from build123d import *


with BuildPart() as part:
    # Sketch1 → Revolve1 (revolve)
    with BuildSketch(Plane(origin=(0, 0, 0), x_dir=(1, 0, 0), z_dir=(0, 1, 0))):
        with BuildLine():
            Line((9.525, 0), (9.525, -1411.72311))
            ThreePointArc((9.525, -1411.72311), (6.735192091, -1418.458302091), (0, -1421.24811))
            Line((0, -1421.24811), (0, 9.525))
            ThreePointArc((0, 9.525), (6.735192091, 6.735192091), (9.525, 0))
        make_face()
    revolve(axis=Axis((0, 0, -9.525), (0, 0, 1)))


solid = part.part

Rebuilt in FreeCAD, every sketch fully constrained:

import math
import FreeCAD as App
import Part
import Sketcher
from FreeCAD import Vector
Q = App.Units.Quantity

doc = App.newDocument("Part")
body = doc.addObject("PartDesign::Body", "Body")

sketch1 = body.newObject("Sketcher::SketchObject", "Sketch")
sketch1.AttachmentSupport = (doc.getObject("XZ_Plane"), [""])
sketch1.MapMode = "FlatFace"
sketch1.addGeometry([
    Part.LineSegment(Vector(9.525, 1411.72311, 0), Vector(9.525, 0, 0)),
    Part.ArcOfCircle(Part.Circle(Vector(0, 0, 0), Vector(0, 0, 1), 9.525), math.radians(-90), math.radians(0)),
    Part.LineSegment(Vector(0, -9.525, 0), Vector(0, 1421.24811, 0)),
    Part.ArcOfCircle(Part.Circle(Vector(0, 1411.72311, 0), Vector(0, 0, 1), 9.525), math.radians(0), math.radians(90)),
], False)
sketch1.addConstraint([
    Sketcher.Constraint("Tangent", 0, 2, 1, 2),
    Sketcher.Constraint("Coincident", 1, 1, 2, 1),
    Sketcher.Constraint("Coincident", 2, 2, 3, 2),
    Sketcher.Constraint("Tangent", 3, 1, 0, 1),
    Sketcher.Constraint("Vertical", 0),
    Sketcher.Constraint("Vertical", 2),
    Sketcher.Constraint("Coincident", 1, 3, -1, 1),
    Sketcher.Constraint("Equal", 1, 3),
    Sketcher.Constraint("PointOnObject", 1, 1, -2),
    Sketcher.Constraint("Radius", 1, Q("0.375 in")),
    Sketcher.Constraint("DistanceY", 0, 2, 0, 1, 1411.72311),
])
revolution = body.newObject("PartDesign::Revolution", "Revolution")
revolution.Profile = sketch1
revolution.ReferenceAxis = (sketch1, ["V_Axis"])
revolution.Angle = 360

doc.recompute()
